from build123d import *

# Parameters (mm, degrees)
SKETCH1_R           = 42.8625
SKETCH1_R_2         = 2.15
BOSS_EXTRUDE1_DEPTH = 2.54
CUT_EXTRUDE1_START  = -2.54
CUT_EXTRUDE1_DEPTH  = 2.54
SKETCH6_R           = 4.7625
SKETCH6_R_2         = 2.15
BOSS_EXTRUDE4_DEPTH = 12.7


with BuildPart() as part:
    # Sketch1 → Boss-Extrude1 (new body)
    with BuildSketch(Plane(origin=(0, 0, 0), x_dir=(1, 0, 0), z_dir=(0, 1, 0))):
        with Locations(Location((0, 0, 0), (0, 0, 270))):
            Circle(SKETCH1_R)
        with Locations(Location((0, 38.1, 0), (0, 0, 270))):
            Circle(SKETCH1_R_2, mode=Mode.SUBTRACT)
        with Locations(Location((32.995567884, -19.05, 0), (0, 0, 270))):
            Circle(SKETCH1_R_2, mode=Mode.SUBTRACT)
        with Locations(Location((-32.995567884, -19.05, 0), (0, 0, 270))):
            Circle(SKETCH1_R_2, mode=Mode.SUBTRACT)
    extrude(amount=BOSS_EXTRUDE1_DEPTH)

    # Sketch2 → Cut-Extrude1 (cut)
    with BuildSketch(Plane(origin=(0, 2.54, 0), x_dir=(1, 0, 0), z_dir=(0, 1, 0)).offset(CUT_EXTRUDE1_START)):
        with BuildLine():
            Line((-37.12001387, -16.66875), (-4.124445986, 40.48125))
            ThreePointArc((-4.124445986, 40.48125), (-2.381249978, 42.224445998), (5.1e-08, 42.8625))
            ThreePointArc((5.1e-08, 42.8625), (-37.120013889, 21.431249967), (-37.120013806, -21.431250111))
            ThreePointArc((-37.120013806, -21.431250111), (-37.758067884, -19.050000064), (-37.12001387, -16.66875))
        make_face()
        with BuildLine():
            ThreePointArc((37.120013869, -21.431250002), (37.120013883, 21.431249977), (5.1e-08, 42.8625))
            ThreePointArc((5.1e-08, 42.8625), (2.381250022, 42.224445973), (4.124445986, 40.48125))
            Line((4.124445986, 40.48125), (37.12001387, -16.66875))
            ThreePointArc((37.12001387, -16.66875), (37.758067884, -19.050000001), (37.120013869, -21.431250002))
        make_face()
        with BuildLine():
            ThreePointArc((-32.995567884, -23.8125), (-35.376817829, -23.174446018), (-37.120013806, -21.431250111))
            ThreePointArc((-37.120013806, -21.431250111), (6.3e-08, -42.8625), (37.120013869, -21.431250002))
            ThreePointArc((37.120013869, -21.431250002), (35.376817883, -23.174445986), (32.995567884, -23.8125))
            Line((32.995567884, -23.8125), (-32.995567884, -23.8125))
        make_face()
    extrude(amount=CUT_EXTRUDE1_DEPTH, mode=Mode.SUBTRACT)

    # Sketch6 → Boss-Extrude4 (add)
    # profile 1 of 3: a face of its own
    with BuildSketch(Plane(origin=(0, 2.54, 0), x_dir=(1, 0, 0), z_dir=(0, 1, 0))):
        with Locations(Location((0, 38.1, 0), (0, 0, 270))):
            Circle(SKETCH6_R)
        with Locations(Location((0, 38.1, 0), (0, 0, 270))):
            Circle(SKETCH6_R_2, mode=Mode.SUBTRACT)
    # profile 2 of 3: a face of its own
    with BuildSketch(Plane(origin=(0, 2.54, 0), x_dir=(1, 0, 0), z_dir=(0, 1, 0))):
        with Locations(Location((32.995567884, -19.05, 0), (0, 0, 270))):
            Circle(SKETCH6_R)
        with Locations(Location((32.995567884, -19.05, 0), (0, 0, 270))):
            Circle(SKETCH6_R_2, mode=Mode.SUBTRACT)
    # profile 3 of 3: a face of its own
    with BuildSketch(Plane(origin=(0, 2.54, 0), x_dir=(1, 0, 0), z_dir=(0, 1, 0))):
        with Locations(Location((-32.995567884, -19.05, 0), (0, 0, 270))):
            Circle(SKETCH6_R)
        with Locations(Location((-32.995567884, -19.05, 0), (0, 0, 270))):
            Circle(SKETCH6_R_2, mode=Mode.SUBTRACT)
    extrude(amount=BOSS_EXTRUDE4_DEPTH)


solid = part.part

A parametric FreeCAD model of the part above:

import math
import FreeCAD as App
import Part
import Sketcher
Q = App.Units.Quantity

doc = App.newDocument("Part")
body = doc.addObject("PartDesign::Body", "Body")

sketch1 = doc.addObject("Sketcher::SketchObject", "Sketch")
body.addObject(sketch1)
sketch1.AttachmentSupport = (doc.XZ_Plane, [""])
sketch1.MapMode = "FlatFace"
sketch1.addGeometry([
    Part.Circle(App.Vector(0, 0, 0), App.Vector(0, 0, 1), 42.8625),
    Part.Circle(App.Vector(0, -38.1, 0), App.Vector(0, 0, 1), 2.15),
    Part.Circle(App.Vector(-32.995568, 19.05, 0), App.Vector(0, 0, 1), 2.15),
    Part.Circle(App.Vector(32.995568, 19.05, 0), App.Vector(0, 0, 1), 2.15),
], False)
sketch1.addConstraint([
    Sketcher.Constraint("Coincident", 0, 3, -1, 1),
    Sketcher.Constraint("Equal", 1, 2),
    Sketcher.Constraint("Equal", 2, 3),
    Sketcher.Constraint("Symmetric", 2, 3, 3, 3, -2),
    Sketcher.Constraint("PointOnObject", 1, 3, -2),
    Sketcher.Constraint("Diameter", 0, Q("3.375 in")),
    Sketcher.Constraint("DistanceY", 1, 3, -1, 1, Q("1.5 in")),
    Sketcher.Constraint("Diameter", 1, 4.3),
    Sketcher.Constraint("DistanceY", -1, 1, 2, 3, Q("0.75 in")),
    Sketcher.Constraint("DistanceX", 2, 3, -1, 1, 32.995568),
])
pad1 = doc.addObject("PartDesign::Pad", "Pad")
body.addObject(pad1)
pad1.Profile = sketch1
pad1.Length = Q("0.1 in")
pad1.Reversed = True

sketch2 = doc.addObject("Sketcher::SketchObject", "Sketch001")
body.addObject(sketch2)
sketch2.AttachmentSupport = (doc.XZ_Plane, [""])
sketch2.MapMode = "FlatFace"
sketch2.addGeometry([
    Part.LineSegment(App.Vector(-37.120014, 16.66875, 0), App.Vector(-4.124446, -40.48125, 0)),
    Part.ArcOfCircle(Part.Circle(App.Vector(0, -38.1, 0), App.Vector(0, 0, 1), 4.7625), math.radians(-150), math.radians(-89.999999)),
    Part.ArcOfCircle(Part.Circle(App.Vector(0, 0, 0), App.Vector(0, 0, 1), 42.8625), math.radians(150), math.radians(270)),
    Part.ArcOfCircle(Part.Circle(App.Vector(-32.995568, 19.05, 0), App.Vector(0, 0, 1), 4.7625), math.radians(149.999998), math.radians(210)),
    Part.ArcOfCircle(Part.Circle(App.Vector(0, 0, 0), App.Vector(0, 0, 1), 42.8625), math.radians(-90), math.radians(30)),
    Part.ArcOfCircle(Part.Circle(App.Vector(0, -38.1, 0), App.Vector(0, 0, 1), 4.7625), math.radians(-89.999999), math.radians(-30)),
    Part.LineSegment(App.Vector(4.124446, -40.48125, 0), App.Vector(37.120014, 16.66875, 0)),
    Part.ArcOfCircle(Part.Circle(App.Vector(32.995568, 19.05, 0), App.Vector(0, 0, 1), 4.7625), math.radians(-30), math.radians(30)),
    Part.ArcOfCircle(Part.Circle(App.Vector(-32.995568, 19.05, 0), App.Vector(0, 0, 1), 4.7625), math.radians(90), math.radians(149.999998)),
    Part.ArcOfCircle(Part.Circle(App.Vector(0, 0, 0), App.Vector(0, 0, 1), 42.8625), math.radians(30), math.radians(150)),
    Part.ArcOfCircle(Part.Circle(App.Vector(32.995568, 19.05, 0), App.Vector(0, 0, 1), 4.7625), math.radians(30), math.radians(90)),
    Part.LineSegment(App.Vector(32.995568, 23.8125, 0), App.Vector(-32.995568, 23.8125, 0)),
], False)
sketch2.addConstraint([
    Sketcher.Constraint("Tangent", 0, 2, 1, 1),
    Sketcher.Constraint("Tangent", 1, 2, 2, 2),
    Sketcher.Constraint("Tangent", 2, 1, 3, 1),
    Sketcher.Constraint("Tangent", 3, 2, 0, 1),
    Sketcher.Constraint("Tangent", 4, 1, 5, 1),
    Sketcher.Constraint("Tangent", 5, 2, 6, 1),
    Sketcher.Constraint("Tangent", 6, 2, 7, 1),
    Sketcher.Constraint("Tangent", 7, 2, 4, 2),
    Sketcher.Constraint("Tangent", 8, 2, 9, 2),
    Sketcher.Constraint("Tangent", 9, 1, 10, 1),
    Sketcher.Constraint("Tangent", 10, 2, 11, 1),
    Sketcher.Constraint("Tangent", 11, 2, 8, 1),
    Sketcher.Constraint("Horizontal", 11),
    Sketcher.Constraint("Coincident", 2, 3, -1, 1),
    Sketcher.Constraint("Coincident", 4, 3, -1, 1),
    Sketcher.Constraint("Coincident", 9, 3, -1, 1),
    Sketcher.Constraint("Coincident", 5, 3, 1, 3),
    Sketcher.Constraint("Coincident", 8, 3, 3, 3),
    Sketcher.Constraint("Coincident", 10, 3, 7, 3),
    Sketcher.Constraint("Equal", 1, 3),
    Sketcher.Constraint("Equal", 2, 4),
    Sketcher.Constraint("Equal", 5, 7),
    Sketcher.Constraint("Equal", 7, 8),
    Sketcher.Constraint("PointOnObject", 1, 3, -2),
    Sketcher.Constraint("Vertical", 6, 2, 7, 2),
    Sketcher.Constraint("Radius", 1, Q("0.1875 in")),
    Sketcher.Constraint("Radius", 2, Q("1.6875 in")),
])
pocket1 = doc.addObject("PartDesign::Pocket", "Pocket")
body.addObject(pocket1)
pocket1.Profile = sketch2
pocket1.Length = Q("0.1 in")

sketch3 = doc.addObject("Sketcher::SketchObject", "Sketch002")
body.addObject(sketch3)
sketch3.AttachmentSupport = (doc.XZ_Plane, [""])
sketch3.MapMode = "FlatFace"
sketch3.AttachmentOffset = App.Placement(App.Vector(0, 0, -0.1 * 25.4), App.Rotation())
sketch3.addGeometry([
    Part.Circle(App.Vector(0, -38.1, 0), App.Vector(0, 0, 1), 4.7625),
    Part.Circle(App.Vector(0, -38.1, 0), App.Vector(0, 0, 1), 2.15),
    Part.Circle(App.Vector(32.995568, 19.05, 0), App.Vector(0, 0, 1), 4.7625),
    Part.Circle(App.Vector(32.995568, 19.05, 0), App.Vector(0, 0, 1), 2.15),
    Part.Circle(App.Vector(-32.995568, 19.05, 0), App.Vector(0, 0, 1), 4.7625),
    Part.Circle(App.Vector(-32.995568, 19.05, 0), App.Vector(0, 0, 1), 2.15),
], False)
sketch3.addConstraint([
    Sketcher.Constraint("Coincident", 1, 3, 0, 3),
    Sketcher.Constraint("Coincident", 3, 3, 2, 3),
    Sketcher.Constraint("Coincident", 5, 3, 4, 3),
    Sketcher.Constraint("Equal", 0, 2),
    Sketcher.Constraint("Equal", 1, 3),
    Sketcher.Constraint("Equal", 2, 4),
    Sketcher.Constraint("Equal", 3, 5),
    Sketcher.Constraint("Symmetric", 2, 3, 4, 3, -2),
    Sketcher.Constraint("PointOnObject", 0, 3, -2),
    Sketcher.Constraint("Diameter", 0, Q("0.375 in")),
    Sketcher.Constraint("DistanceY", 0, 3, -1, 1, Q("1.5 in")),
    Sketcher.Constraint("Diameter", 1, 4.3),
    Sketcher.Constraint("DistanceY", -1, 1, 2, 3, Q("0.75 in")),
    Sketcher.Constraint("DistanceX", -1, 1, 2, 3, 32.995568),
])
pad2 = doc.addObject("PartDesign::Pad", "Pad001")
body.addObject(pad2)
pad2.Profile = sketch3
pad2.Length = Q("0.5 in")
pad2.Reversed = True

doc.recompute()
